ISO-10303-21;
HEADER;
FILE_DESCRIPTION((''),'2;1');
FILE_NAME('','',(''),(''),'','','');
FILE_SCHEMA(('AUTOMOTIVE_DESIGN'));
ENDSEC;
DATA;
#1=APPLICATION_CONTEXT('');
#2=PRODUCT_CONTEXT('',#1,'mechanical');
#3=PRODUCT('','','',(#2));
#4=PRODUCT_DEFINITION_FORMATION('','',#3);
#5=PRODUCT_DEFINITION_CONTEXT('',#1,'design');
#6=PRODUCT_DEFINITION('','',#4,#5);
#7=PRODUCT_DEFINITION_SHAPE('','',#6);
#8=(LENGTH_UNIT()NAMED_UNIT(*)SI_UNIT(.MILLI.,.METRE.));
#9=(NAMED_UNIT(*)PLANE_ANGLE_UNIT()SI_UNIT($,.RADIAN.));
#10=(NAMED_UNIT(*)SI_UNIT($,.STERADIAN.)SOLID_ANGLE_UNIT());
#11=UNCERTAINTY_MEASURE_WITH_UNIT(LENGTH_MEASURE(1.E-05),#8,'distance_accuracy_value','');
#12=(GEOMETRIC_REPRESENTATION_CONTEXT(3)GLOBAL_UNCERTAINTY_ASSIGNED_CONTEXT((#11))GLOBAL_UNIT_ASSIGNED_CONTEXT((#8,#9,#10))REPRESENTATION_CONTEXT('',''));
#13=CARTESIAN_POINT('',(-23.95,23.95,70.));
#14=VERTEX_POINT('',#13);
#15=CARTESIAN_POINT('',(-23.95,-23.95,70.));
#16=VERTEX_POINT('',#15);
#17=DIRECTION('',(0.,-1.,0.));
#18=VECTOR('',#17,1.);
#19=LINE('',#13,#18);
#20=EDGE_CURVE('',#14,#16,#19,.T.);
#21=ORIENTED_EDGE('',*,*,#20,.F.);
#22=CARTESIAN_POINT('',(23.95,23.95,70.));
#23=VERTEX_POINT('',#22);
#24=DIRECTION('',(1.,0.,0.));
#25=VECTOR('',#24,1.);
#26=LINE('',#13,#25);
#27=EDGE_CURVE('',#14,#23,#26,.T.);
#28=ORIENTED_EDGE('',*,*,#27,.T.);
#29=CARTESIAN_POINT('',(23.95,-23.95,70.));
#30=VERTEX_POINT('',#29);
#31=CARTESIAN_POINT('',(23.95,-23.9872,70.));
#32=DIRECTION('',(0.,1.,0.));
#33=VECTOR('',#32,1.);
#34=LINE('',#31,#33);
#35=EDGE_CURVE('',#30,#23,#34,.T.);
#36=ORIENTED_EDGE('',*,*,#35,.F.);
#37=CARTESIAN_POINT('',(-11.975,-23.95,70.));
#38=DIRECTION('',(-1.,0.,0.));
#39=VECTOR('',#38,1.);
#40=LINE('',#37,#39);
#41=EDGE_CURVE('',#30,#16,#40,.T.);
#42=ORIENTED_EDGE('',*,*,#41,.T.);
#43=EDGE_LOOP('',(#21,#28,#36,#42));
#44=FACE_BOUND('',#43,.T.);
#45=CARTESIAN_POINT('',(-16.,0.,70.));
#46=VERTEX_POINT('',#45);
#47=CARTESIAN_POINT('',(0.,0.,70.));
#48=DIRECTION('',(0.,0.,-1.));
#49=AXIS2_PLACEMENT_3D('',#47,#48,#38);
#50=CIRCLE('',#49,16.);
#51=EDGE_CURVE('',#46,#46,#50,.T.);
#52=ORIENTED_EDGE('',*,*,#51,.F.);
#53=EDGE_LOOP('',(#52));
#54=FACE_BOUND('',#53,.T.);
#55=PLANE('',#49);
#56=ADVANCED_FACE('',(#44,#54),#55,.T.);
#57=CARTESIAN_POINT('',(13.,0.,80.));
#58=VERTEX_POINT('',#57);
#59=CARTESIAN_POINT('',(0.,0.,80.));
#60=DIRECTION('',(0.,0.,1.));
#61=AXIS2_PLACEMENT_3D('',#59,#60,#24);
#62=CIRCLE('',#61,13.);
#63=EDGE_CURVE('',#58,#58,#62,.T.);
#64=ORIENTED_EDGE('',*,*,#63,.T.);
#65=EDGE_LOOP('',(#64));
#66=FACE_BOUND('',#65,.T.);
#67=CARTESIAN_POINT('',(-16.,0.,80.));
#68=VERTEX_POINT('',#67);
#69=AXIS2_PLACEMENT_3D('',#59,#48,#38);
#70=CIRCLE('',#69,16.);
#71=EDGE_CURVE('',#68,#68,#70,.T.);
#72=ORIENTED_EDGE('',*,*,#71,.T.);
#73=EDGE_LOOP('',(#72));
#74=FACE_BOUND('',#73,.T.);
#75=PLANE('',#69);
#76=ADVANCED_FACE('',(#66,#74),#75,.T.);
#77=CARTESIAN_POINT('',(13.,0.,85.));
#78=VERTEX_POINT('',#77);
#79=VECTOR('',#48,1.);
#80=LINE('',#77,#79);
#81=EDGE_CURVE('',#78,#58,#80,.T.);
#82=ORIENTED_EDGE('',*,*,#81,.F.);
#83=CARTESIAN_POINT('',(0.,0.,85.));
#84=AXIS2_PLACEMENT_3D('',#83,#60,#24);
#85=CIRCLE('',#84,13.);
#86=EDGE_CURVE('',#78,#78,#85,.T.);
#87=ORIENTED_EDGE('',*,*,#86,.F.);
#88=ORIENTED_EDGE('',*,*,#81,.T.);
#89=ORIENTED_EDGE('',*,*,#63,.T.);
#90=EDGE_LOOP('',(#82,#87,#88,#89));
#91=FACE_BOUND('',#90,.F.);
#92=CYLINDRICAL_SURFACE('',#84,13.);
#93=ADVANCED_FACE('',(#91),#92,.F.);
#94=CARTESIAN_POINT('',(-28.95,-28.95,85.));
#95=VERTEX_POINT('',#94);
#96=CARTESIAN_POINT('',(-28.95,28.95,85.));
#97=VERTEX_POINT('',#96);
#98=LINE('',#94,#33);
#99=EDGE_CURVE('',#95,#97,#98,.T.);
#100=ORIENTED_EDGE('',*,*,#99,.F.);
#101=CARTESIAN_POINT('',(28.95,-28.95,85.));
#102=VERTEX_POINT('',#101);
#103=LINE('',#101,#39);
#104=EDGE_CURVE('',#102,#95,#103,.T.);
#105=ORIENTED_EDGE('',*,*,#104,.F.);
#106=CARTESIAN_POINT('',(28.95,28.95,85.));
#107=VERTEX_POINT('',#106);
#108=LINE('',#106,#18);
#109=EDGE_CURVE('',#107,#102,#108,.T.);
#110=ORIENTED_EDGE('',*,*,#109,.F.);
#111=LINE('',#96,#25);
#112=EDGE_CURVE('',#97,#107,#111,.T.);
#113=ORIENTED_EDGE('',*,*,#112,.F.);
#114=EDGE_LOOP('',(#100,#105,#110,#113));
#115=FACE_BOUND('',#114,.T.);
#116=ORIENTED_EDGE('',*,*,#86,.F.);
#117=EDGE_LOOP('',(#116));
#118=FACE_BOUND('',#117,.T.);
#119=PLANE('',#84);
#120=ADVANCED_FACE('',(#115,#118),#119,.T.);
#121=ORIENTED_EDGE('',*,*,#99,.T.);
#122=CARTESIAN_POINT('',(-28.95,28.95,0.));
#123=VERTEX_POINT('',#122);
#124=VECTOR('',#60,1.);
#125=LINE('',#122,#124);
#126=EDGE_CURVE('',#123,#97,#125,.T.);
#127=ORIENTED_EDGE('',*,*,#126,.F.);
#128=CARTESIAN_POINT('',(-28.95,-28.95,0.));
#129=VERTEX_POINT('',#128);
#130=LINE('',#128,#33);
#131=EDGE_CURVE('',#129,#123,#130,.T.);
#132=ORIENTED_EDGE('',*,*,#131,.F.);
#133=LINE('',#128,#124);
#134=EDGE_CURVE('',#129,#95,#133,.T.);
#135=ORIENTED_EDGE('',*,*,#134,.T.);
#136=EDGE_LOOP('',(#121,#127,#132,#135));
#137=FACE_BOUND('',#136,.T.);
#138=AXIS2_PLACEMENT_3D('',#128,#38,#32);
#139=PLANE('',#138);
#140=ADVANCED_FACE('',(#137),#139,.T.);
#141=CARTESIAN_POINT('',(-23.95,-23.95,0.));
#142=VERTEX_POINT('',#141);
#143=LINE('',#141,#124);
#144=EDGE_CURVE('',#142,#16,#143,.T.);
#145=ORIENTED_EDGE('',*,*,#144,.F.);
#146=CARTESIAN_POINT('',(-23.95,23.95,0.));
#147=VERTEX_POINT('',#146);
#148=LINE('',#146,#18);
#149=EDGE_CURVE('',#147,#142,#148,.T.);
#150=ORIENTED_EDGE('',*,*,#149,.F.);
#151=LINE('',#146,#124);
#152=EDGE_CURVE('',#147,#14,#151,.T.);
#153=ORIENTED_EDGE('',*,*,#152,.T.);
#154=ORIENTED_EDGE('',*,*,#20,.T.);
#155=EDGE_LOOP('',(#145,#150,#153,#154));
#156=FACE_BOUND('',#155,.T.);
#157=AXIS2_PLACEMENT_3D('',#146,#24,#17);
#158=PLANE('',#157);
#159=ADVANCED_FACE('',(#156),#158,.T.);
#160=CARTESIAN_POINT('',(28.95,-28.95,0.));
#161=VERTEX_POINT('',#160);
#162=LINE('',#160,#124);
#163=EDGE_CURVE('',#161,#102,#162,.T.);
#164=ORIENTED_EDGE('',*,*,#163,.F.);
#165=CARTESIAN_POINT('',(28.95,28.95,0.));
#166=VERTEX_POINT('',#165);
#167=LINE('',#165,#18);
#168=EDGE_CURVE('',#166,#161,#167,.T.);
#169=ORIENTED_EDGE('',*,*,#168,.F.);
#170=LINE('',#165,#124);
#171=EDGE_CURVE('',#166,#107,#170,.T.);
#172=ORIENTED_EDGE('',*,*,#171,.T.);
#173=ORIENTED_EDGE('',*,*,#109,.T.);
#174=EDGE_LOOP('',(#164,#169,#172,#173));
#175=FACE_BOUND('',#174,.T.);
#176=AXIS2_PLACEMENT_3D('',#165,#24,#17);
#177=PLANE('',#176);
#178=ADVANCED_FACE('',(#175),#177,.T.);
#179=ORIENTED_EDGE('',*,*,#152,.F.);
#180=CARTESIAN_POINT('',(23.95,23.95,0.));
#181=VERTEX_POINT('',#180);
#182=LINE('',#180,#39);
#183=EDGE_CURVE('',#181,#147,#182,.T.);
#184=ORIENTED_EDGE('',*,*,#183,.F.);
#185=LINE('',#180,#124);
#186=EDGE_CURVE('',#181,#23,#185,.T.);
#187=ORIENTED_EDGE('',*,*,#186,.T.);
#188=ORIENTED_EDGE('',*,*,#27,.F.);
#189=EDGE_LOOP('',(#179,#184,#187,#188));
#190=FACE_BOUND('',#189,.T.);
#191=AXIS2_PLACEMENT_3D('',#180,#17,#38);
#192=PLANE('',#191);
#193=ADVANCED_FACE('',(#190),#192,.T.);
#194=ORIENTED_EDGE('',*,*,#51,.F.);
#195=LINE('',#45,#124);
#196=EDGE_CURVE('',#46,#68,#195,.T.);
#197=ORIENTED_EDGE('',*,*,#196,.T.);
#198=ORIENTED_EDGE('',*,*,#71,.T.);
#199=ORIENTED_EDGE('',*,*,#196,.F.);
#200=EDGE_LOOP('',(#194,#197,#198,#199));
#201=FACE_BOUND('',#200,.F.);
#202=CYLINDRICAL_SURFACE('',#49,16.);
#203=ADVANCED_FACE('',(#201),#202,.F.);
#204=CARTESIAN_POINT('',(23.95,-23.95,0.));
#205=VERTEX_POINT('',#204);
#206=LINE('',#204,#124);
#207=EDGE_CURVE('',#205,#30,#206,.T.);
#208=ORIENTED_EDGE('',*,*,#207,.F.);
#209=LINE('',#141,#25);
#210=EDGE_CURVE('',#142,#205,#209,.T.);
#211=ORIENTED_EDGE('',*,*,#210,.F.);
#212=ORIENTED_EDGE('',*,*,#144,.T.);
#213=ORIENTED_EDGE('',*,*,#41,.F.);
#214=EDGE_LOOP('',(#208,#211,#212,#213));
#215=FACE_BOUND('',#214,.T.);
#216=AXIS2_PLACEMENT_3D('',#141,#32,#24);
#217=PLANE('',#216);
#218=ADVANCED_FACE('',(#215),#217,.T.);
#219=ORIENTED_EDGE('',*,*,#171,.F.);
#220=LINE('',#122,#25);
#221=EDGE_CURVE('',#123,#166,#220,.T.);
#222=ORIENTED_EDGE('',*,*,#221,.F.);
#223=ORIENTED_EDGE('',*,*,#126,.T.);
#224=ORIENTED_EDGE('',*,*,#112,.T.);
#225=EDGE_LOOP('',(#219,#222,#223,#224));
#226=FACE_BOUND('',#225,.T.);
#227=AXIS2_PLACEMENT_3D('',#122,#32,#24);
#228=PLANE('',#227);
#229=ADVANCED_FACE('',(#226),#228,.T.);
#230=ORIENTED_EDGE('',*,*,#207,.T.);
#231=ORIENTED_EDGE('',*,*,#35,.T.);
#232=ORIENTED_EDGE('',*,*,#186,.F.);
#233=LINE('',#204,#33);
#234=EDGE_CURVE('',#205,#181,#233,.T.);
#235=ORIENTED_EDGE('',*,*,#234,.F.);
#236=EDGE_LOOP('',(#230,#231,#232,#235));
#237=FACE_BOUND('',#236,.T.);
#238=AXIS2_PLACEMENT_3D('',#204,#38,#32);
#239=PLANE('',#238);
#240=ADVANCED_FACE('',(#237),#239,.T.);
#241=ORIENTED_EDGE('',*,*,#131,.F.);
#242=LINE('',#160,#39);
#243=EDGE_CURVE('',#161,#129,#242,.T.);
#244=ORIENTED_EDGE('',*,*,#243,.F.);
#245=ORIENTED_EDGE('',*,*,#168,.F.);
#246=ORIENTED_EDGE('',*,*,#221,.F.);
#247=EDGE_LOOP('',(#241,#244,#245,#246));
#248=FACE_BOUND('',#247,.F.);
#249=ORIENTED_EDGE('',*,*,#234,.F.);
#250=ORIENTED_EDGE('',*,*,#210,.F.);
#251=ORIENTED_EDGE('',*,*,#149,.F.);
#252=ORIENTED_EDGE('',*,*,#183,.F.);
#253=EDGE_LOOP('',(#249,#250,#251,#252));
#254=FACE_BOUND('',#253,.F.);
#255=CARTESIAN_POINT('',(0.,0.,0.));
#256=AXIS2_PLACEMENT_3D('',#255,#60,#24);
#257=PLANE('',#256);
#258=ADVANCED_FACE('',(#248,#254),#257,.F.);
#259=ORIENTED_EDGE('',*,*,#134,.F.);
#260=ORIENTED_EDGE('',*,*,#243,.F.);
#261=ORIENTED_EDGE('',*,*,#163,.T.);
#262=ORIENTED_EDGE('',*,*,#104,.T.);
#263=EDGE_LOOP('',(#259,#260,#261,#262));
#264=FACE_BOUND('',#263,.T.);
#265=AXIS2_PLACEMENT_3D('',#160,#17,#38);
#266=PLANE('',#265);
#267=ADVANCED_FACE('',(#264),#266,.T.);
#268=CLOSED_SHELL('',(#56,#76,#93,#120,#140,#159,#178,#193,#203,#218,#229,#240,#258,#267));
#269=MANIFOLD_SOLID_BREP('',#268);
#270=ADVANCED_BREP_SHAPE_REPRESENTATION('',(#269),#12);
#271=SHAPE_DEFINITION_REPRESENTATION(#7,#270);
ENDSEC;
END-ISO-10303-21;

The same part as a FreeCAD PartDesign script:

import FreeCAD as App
import Part
import Sketcher

doc = App.newDocument("Part")
params = doc.addObject("Spreadsheet::Sheet", "Params")
for row, (alias, value) in enumerate([
    ("sketch1_width", "47.9 mm"),
    ("pad1_length", "85 mm"),
    ("sketch2_width", "47.9 mm"),
    ("pad2_length", "5 mm"),
    ("sketch3_diameter", "32 mm"),
    ("pocket1_length", "8 mm"),
    ("sketch4_width", "47.9 mm"),
    ("pad3_length", "10 mm"),
    ("sketch5_diameter", "32 mm"),
    ("pocket2_length", "10 mm"),
    ("sketch6_diameter", "26 mm"),
    ("pocket3_length", "5 mm"),
], start=1):
    params.set(f"A{row}", alias)
    params.set(f"B{row}", "=" + value)
    params.setAlias(f"B{row}", alias)

body = doc.addObject("PartDesign::Body", "Body")

# Sketch on XY plane
sketch1 = doc.addObject("Sketcher::SketchObject", "Sketch")
body.addObject(sketch1)
sketch1.AttachmentSupport = (doc.XY_Plane, [""])
sketch1.MapMode = "FlatFace"
sketch1.addGeometry(Part.LineSegment(App.Vector(29, -29, 0), App.Vector(29, 29, 0)), False)
sketch1.addGeometry(Part.LineSegment(App.Vector(29, 29, 0), App.Vector(-29, 29, 0)), False)
sketch1.addGeometry(Part.LineSegment(App.Vector(-29, 29, 0), App.Vector(-29, -29, 0)), False)
sketch1.addGeometry(Part.LineSegment(App.Vector(-29, -29, 0), App.Vector(29, -29, 0)), False)
sketch1.addGeometry(Part.LineSegment(App.Vector(24, -24, 0), App.Vector(-24, -24, 0)), False)
sketch1.addGeometry(Part.LineSegment(App.Vector(-24, -24, 0), App.Vector(-24, 24, 0)), False)
sketch1.addGeometry(Part.LineSegment(App.Vector(-24, 24, 0), App.Vector(24, 24, 0)), False)
sketch1.addGeometry(Part.LineSegment(App.Vector(24, 24, 0), App.Vector(24, -24, 0)), False)
sketch1.addConstraint(Sketcher.Constraint("Coincident", 0, 2, 1, 1))
sketch1.addConstraint(Sketcher.Constraint("Coincident", 1, 2, 2, 1))
sketch1.addConstraint(Sketcher.Constraint("Coincident", 2, 2, 3, 1))
sketch1.addConstraint(Sketcher.Constraint("Coincident", 3, 2, 0, 1))
sketch1.addConstraint(Sketcher.Constraint("Coincident", 4, 2, 5, 1))
sketch1.addConstraint(Sketcher.Constraint("Coincident", 5, 2, 6, 1))
sketch1.addConstraint(Sketcher.Constraint("Coincident", 6, 2, 7, 1))
sketch1.addConstraint(Sketcher.Constraint("Coincident", 7, 2, 4, 1))
sketch1.addConstraint(Sketcher.Constraint("Vertical", 0))
sketch1.addConstraint(Sketcher.Constraint("Horizontal", 1))
sketch1.addConstraint(Sketcher.Constraint("Vertical", 2))
sketch1.addConstraint(Sketcher.Constraint("Horizontal", 3))
sketch1.addConstraint(Sketcher.Constraint("Horizontal", 4))
sketch1.addConstraint(Sketcher.Constraint("Vertical", 5))
sketch1.addConstraint(Sketcher.Constraint("Horizontal", 6))
sketch1.addConstraint(Sketcher.Constraint("Vertical", 7))
sketch1.addConstraint(Sketcher.Constraint("Symmetric", 0, 2, 2, 2, -1, 1))
sketch1.addConstraint(Sketcher.Constraint("Symmetric", 4, 2, 6, 2, -1, 1))
sketch1.addConstraint(Sketcher.Constraint("Equal", 3, 0))
sketch1.addConstraint(Sketcher.Constraint("Equal", 6, 5))
sketch1.addConstraint(Sketcher.Constraint("DistanceX", 4, 2, 4, 1, 47.9))
sketch1.addConstraint(Sketcher.Constraint("DistanceX", 2, 2, 4, 2, 5.0))
sketch1.setExpression("Constraints[20]", "Params.sketch1_width")
pad1 = doc.addObject("PartDesign::Pad", "Pad")
body.addObject(pad1)
pad1.Profile = sketch1
pad1.setExpression("Length", "Params.pad1_length")

# Sketch on XY plane
sketch2 = doc.addObject("Sketcher::SketchObject", "Sketch001")
body.addObject(sketch2)
sketch2.AttachmentSupport = (doc.XY_Plane, [""])
sketch2.MapMode = "FlatFace"
sketch2.AttachmentOffset = App.Placement(App.Vector(0, 0, 85), App.Rotation())
sketch2.addGeometry(Part.LineSegment(App.Vector(24, 24, 0), App.Vector(-24, 24, 0)), False)
sketch2.addGeometry(Part.LineSegment(App.Vector(-24, 24, 0), App.Vector(-24, -24, 0)), False)
sketch2.addGeometry(Part.LineSegment(App.Vector(-24, -24, 0), App.Vector(24, -24, 0)), False)
sketch2.addGeometry(Part.LineSegment(App.Vector(24, -24, 0), App.Vector(24, 24, 0)), False)
sketch2.addConstraint(Sketcher.Constraint("Coincident", 0, 2, 1, 1))
sketch2.addConstraint(Sketcher.Constraint("Coincident", 1, 2, 2, 1))
sketch2.addConstraint(Sketcher.Constraint("Coincident", 2, 2, 3, 1))
sketch2.addConstraint(Sketcher.Constraint("Coincident", 3, 2, 0, 1))
sketch2.addConstraint(Sketcher.Constraint("Horizontal", 0))
sketch2.addConstraint(Sketcher.Constraint("Vertical", 1))
sketch2.addConstraint(Sketcher.Constraint("Horizontal", 2))
sketch2.addConstraint(Sketcher.Constraint("Vertical", 3))
sketch2.addConstraint(Sketcher.Constraint("Symmetric", 0, 2, 2, 2, -1, 1))
sketch2.addConstraint(Sketcher.Constraint("Equal", 2, 1))
sketch2.addConstraint(Sketcher.Constraint("DistanceX", 0, 2, 0, 1, 47.9))
sketch2.setExpression("Constraints[10]", "Params.sketch2_width")
pad2 = doc.addObject("PartDesign::Pad", "Pad001")
body.addObject(pad2)
pad2.Profile = sketch2
pad2.setExpression("Length", "Params.pad2_length")
pad2.Reversed = True

# Sketch on XY plane
sketch3 = doc.addObject("Sketcher::SketchObject", "Sketch002")
body.addObject(sketch3)
sketch3.AttachmentSupport = (doc.XY_Plane, [""])
sketch3.MapMode = "FlatFace"
sketch3.AttachmentOffset = App.Placement(App.Vector(0, 0, 85), App.Rotation())
sketch3.addGeometry(Part.Circle(App.Vector(0, 0, 0), App.Vector(0, 0, 1), 16), False)
sketch3.addConstraint(Sketcher.Constraint("Coincident", 0, 3, -1, 1))
sketch3.addConstraint(Sketcher.Constraint("Diameter", 0, 32.0))
sketch3.setExpression("Constraints[1]", "Params.sketch3_diameter")
pocket1 = doc.addObject("PartDesign::Pocket", "Pocket")
body.addObject(pocket1)
pocket1.Profile = sketch3
pocket1.setExpression("Length", "Params.pocket1_length")
pocket1.Reversed = True

# Sketch on XY plane
sketch4 = doc.addObject("Sketcher::SketchObject", "Sketch003")
body.addObject(sketch4)
sketch4.AttachmentSupport = (doc.XY_Plane, [""])
sketch4.MapMode = "FlatFace"
sketch4.AttachmentOffset = App.Placement(App.Vector(0, 0, 80), App.Rotation())
sketch4.addGeometry(Part.LineSegment(App.Vector(-24, -24, 0), App.Vector(-24, 24, 0)), False)
sketch4.addGeometry(Part.LineSegment(App.Vector(-24, 24, 0), App.Vector(24, 24, 0)), False)
sketch4.addGeometry(Part.LineSegment(App.Vector(24, 24, 0), App.Vector(24, -24, 0)), False)
sketch4.addGeometry(Part.LineSegment(App.Vector(24, -24, 0), App.Vector(-24, -24, 0)), False)
sketch4.addConstraint(Sketcher.Constraint("Coincident", 0, 2, 1, 1))
sketch4.addConstraint(Sketcher.Constraint("Coincident", 1, 2, 2, 1))
sketch4.addConstraint(Sketcher.Constraint("Coincident", 2, 2, 3, 1))
sketch4.addConstraint(Sketcher.Constraint("Coincident", 3, 2, 0, 1))
sketch4.addConstraint(Sketcher.Constraint("Vertical", 0))
sketch4.addConstraint(Sketcher.Constraint("Horizontal", 1))
sketch4.addConstraint(Sketcher.Constraint("Vertical", 2))
sketch4.addConstraint(Sketcher.Constraint("Horizontal", 3))
sketch4.addConstraint(Sketcher.Constraint("DistanceX", 1, 1, 1, 2, 47.9))
sketch4.addConstraint(Sketcher.Constraint("DistanceX", 0, 2, -1, 1, 23.95))
sketch4.addConstraint(Sketcher.Constraint("DistanceY", -1, 1, 0, 2, 23.95))
sketch4.addConstraint(Sketcher.Constraint("DistanceY", 0, 1, 0, 2, 47.9372))
sketch4.setExpression("Constraints[8]", "Params.sketch4_width")
pad3 = doc.addObject("PartDesign::Pad", "Pad002")
body.addObject(pad3)
pad3.Profile = sketch4
pad3.setExpression("Length", "Params.pad3_length")
pad3.Reversed = True

# Sketch on XY plane
sketch5 = doc.addObject("Sketcher::SketchObject", "Sketch004")
body.addObject(sketch5)
sketch5.AttachmentSupport = (doc.XY_Plane, [""])
sketch5.MapMode = "FlatFace"
sketch5.AttachmentOffset = App.Placement(App.Vector(0, 0, 70), App.Rotation())
sketch5.addGeometry(Part.Circle(App.Vector(0, 0, 0), App.Vector(0, 0, 1), 16), False)
sketch5.addConstraint(Sketcher.Constraint("Coincident", 0, 3, -1, 1))
sketch5.addConstraint(Sketcher.Constraint("Diameter", 0, 32.0))
sketch5.setExpression("Constraints[1]", "Params.sketch5_diameter")
pocket2 = doc.addObject("PartDesign::Pocket", "Pocket001")
body.addObject(pocket2)
pocket2.Profile = sketch5
pocket2.setExpression("Length", "Params.pocket2_length")
pocket2.Reversed = True

# Sketch on XY plane
sketch6 = doc.addObject("Sketcher::SketchObject", "Sketch005")
body.addObject(sketch6)
sketch6.AttachmentSupport = (doc.XY_Plane, [""])
sketch6.MapMode = "FlatFace"
sketch6.AttachmentOffset = App.Placement(App.Vector(0, 0, 85), App.Rotation())
sketch6.addGeometry(Part.Circle(App.Vector(0, 0, 0), App.Vector(0, 0, 1), 13), False)
sketch6.addConstraint(Sketcher.Constraint("Coincident", 0, 3, -1, 1))
sketch6.addConstraint(Sketcher.Constraint("Diameter", 0, 26.0))
sketch6.setExpression("Constraints[1]", "Params.sketch6_diameter")
pocket3 = doc.addObject("PartDesign::Pocket", "Pocket002")
body.addObject(pocket3)
pocket3.Profile = sketch6
pocket3.setExpression("Length", "Params.pocket3_length")

doc.recompute()
